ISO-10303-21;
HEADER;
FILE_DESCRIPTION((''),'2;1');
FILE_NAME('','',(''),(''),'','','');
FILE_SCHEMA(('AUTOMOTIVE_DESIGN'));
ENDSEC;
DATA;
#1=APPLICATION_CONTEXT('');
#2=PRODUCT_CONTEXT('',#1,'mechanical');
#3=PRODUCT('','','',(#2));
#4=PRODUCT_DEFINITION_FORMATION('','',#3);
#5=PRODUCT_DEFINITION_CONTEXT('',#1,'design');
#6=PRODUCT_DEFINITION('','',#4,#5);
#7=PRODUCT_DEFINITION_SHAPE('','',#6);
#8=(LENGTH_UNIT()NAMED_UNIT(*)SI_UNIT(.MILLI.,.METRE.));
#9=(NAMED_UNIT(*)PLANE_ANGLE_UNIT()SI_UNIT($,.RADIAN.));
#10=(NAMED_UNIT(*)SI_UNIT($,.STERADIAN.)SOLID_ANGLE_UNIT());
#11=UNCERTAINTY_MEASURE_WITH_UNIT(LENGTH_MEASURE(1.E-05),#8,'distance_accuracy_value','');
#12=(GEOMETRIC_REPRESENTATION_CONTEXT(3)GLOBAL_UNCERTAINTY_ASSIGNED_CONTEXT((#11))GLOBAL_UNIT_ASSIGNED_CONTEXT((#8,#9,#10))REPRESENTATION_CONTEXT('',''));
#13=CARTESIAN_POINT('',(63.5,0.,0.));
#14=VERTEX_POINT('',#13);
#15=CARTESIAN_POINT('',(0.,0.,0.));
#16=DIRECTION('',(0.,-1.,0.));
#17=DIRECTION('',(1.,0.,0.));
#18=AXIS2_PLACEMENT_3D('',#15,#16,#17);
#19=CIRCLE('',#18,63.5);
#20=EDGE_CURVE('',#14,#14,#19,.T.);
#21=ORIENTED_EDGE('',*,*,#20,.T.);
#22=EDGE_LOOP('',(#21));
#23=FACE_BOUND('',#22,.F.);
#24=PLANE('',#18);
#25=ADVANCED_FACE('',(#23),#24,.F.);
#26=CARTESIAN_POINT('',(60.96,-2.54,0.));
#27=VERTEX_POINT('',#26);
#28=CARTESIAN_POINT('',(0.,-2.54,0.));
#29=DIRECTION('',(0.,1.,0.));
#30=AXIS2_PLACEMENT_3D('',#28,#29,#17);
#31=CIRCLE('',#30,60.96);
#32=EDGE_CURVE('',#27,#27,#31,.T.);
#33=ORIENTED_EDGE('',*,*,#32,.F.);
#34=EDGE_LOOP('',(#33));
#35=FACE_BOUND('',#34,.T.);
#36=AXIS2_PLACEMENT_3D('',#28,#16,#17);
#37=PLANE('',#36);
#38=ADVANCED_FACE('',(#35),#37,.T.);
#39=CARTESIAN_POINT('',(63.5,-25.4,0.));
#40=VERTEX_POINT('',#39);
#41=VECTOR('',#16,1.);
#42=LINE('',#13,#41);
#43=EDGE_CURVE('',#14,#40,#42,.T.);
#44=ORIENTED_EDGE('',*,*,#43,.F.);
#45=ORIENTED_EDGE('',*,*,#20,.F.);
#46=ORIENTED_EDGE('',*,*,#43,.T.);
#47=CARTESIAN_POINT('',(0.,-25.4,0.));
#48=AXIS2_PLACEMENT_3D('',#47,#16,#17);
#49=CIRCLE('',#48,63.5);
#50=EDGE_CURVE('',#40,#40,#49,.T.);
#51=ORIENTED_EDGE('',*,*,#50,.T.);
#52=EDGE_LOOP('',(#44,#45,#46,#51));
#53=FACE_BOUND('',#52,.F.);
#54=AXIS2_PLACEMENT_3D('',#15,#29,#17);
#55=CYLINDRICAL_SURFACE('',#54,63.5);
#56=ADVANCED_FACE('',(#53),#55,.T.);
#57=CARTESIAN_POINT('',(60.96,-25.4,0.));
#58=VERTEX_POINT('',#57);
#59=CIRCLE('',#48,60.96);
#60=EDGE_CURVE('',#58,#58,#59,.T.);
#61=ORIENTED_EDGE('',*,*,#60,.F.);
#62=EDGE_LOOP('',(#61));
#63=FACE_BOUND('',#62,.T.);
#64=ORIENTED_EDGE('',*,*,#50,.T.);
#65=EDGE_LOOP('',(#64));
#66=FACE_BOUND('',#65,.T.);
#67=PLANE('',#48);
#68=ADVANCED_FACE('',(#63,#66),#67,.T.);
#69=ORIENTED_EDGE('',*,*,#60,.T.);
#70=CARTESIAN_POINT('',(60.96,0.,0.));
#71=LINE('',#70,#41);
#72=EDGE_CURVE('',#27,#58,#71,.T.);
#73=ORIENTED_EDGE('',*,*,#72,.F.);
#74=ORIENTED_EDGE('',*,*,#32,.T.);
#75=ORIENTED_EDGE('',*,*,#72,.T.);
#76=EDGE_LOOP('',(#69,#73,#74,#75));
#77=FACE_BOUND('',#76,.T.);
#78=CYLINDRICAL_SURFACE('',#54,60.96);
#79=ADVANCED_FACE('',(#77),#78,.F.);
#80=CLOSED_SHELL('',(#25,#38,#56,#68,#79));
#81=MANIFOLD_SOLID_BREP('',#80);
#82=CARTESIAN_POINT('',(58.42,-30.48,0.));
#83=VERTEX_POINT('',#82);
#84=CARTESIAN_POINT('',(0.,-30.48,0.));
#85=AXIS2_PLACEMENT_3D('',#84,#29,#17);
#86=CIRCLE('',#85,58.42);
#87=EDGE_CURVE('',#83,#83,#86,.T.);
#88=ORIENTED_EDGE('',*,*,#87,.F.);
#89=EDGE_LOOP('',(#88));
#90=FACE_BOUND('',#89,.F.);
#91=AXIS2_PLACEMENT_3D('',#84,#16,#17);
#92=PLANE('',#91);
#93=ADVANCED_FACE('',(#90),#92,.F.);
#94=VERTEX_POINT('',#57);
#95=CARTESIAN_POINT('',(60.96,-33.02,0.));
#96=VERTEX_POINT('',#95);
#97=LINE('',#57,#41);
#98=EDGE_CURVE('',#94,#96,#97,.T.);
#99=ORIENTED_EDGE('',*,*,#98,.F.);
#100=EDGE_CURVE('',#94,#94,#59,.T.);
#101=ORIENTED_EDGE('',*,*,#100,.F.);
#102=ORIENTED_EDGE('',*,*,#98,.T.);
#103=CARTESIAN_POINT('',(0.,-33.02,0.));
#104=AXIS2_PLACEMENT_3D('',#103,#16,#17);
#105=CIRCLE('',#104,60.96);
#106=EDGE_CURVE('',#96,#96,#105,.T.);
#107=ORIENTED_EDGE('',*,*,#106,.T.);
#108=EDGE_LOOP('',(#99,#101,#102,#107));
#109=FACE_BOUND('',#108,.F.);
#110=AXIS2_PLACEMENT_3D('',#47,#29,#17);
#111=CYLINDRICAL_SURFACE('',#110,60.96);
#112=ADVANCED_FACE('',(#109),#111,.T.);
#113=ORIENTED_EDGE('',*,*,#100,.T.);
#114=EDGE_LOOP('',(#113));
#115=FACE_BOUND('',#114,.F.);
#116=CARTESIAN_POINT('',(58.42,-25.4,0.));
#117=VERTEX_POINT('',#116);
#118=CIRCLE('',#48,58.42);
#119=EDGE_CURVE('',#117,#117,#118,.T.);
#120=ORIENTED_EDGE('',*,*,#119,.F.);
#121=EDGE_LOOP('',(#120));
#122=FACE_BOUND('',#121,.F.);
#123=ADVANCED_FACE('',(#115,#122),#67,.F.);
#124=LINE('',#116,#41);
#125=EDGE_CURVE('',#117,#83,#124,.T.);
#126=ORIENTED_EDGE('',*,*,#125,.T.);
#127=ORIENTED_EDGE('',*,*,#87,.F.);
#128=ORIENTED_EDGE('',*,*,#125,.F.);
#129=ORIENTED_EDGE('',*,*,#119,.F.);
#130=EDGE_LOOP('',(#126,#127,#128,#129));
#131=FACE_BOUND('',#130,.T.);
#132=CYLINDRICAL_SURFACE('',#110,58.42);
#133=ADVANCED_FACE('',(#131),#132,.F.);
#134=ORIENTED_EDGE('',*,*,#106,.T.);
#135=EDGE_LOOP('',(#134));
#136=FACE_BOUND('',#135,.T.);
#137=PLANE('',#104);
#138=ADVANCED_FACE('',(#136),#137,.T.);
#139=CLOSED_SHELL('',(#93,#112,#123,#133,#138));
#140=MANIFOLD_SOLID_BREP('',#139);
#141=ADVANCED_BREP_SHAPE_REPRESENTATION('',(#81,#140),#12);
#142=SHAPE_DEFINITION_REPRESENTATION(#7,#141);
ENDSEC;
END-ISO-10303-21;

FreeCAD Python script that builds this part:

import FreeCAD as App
import Part
import Sketcher
from FreeCAD import Vector
Q = App.Units.Quantity


def faces_at(feature, points):
    """Names of the faces that lie closest to the given points."""
    faces = feature.Shape.Faces
    near = lambda p: min(range(len(faces)), key=lambda i: faces[i].distToShape(Part.Vertex(*p))[0])
    return sorted({f"Face{near(p) + 1}" for p in points})

doc = App.newDocument("Part")
body = doc.addObject("PartDesign::Body", "Body")

# Sketch on XZ plane
sketch1 = doc.addObject("Sketcher::SketchObject", "Sketch")
body.addObject(sketch1)
sketch1.AttachmentSupport = (doc.XZ_Plane, [""])
sketch1.MapMode = "FlatFace"
sketch1.addGeometry(Part.Circle(Vector(0, 0, 0), Vector(0, 0, 1), 64), False)
sketch1.addConstraint([
    Sketcher.Constraint("Coincident", 0, 3, -1, 1),
    Sketcher.Constraint("Diameter", 0, Q("5 in")),
])
pad1 = doc.addObject("PartDesign::Pad", "Pad")
body.addObject(pad1)
pad1.Profile = sketch1
pad1.Length = Q("1 in")
doc.recompute()

thickness = doc.addObject("PartDesign::Thickness", "Thickness")
body.addObject(thickness)
thickness.Base = (pad1, faces_at(pad1, [(0, -25.4, 0)]))
thickness.Value = Q("0.1 in")
thickness.Reversed = True
thickness.Join = "Arc"
body2 = doc.addObject("PartDesign::Body", "Body001")

# Sketch on XZ plane
sketch2 = doc.addObject("Sketcher::SketchObject", "Sketch001")
body2.addObject(sketch2)
sketch2.AttachmentSupport = (doc.getObject("XZ_Plane001"), [""])
sketch2.MapMode = "FlatFace"
sketch2.AttachmentOffset = App.Placement(Vector(0, 0, 1 * 25.4), App.Rotation())
sketch2.addGeometry(Part.Circle(Vector(0, 0, 0), Vector(0, 0, 1), 61), False)
sketch2.addConstraint([
    Sketcher.Constraint("Coincident", 0, 3, -1, 1),
    Sketcher.Constraint("Diameter", 0, Q("4.8 in")),
])
pad2 = doc.addObject("PartDesign::Pad", "Pad001")
body2.addObject(pad2)
pad2.Profile = sketch2
pad2.Length = Q("0.3 in")
doc.recompute()

thickness2 = doc.addObject("PartDesign::Thickness", "Thickness001")
body2.addObject(thickness2)
thickness2.Base = (pad2, faces_at(pad2, [(0, -25.4, 0)]))
thickness2.Value = Q("0.1 in")
thickness2.Reversed = True
thickness2.Join = "Arc"

doc.recompute()
